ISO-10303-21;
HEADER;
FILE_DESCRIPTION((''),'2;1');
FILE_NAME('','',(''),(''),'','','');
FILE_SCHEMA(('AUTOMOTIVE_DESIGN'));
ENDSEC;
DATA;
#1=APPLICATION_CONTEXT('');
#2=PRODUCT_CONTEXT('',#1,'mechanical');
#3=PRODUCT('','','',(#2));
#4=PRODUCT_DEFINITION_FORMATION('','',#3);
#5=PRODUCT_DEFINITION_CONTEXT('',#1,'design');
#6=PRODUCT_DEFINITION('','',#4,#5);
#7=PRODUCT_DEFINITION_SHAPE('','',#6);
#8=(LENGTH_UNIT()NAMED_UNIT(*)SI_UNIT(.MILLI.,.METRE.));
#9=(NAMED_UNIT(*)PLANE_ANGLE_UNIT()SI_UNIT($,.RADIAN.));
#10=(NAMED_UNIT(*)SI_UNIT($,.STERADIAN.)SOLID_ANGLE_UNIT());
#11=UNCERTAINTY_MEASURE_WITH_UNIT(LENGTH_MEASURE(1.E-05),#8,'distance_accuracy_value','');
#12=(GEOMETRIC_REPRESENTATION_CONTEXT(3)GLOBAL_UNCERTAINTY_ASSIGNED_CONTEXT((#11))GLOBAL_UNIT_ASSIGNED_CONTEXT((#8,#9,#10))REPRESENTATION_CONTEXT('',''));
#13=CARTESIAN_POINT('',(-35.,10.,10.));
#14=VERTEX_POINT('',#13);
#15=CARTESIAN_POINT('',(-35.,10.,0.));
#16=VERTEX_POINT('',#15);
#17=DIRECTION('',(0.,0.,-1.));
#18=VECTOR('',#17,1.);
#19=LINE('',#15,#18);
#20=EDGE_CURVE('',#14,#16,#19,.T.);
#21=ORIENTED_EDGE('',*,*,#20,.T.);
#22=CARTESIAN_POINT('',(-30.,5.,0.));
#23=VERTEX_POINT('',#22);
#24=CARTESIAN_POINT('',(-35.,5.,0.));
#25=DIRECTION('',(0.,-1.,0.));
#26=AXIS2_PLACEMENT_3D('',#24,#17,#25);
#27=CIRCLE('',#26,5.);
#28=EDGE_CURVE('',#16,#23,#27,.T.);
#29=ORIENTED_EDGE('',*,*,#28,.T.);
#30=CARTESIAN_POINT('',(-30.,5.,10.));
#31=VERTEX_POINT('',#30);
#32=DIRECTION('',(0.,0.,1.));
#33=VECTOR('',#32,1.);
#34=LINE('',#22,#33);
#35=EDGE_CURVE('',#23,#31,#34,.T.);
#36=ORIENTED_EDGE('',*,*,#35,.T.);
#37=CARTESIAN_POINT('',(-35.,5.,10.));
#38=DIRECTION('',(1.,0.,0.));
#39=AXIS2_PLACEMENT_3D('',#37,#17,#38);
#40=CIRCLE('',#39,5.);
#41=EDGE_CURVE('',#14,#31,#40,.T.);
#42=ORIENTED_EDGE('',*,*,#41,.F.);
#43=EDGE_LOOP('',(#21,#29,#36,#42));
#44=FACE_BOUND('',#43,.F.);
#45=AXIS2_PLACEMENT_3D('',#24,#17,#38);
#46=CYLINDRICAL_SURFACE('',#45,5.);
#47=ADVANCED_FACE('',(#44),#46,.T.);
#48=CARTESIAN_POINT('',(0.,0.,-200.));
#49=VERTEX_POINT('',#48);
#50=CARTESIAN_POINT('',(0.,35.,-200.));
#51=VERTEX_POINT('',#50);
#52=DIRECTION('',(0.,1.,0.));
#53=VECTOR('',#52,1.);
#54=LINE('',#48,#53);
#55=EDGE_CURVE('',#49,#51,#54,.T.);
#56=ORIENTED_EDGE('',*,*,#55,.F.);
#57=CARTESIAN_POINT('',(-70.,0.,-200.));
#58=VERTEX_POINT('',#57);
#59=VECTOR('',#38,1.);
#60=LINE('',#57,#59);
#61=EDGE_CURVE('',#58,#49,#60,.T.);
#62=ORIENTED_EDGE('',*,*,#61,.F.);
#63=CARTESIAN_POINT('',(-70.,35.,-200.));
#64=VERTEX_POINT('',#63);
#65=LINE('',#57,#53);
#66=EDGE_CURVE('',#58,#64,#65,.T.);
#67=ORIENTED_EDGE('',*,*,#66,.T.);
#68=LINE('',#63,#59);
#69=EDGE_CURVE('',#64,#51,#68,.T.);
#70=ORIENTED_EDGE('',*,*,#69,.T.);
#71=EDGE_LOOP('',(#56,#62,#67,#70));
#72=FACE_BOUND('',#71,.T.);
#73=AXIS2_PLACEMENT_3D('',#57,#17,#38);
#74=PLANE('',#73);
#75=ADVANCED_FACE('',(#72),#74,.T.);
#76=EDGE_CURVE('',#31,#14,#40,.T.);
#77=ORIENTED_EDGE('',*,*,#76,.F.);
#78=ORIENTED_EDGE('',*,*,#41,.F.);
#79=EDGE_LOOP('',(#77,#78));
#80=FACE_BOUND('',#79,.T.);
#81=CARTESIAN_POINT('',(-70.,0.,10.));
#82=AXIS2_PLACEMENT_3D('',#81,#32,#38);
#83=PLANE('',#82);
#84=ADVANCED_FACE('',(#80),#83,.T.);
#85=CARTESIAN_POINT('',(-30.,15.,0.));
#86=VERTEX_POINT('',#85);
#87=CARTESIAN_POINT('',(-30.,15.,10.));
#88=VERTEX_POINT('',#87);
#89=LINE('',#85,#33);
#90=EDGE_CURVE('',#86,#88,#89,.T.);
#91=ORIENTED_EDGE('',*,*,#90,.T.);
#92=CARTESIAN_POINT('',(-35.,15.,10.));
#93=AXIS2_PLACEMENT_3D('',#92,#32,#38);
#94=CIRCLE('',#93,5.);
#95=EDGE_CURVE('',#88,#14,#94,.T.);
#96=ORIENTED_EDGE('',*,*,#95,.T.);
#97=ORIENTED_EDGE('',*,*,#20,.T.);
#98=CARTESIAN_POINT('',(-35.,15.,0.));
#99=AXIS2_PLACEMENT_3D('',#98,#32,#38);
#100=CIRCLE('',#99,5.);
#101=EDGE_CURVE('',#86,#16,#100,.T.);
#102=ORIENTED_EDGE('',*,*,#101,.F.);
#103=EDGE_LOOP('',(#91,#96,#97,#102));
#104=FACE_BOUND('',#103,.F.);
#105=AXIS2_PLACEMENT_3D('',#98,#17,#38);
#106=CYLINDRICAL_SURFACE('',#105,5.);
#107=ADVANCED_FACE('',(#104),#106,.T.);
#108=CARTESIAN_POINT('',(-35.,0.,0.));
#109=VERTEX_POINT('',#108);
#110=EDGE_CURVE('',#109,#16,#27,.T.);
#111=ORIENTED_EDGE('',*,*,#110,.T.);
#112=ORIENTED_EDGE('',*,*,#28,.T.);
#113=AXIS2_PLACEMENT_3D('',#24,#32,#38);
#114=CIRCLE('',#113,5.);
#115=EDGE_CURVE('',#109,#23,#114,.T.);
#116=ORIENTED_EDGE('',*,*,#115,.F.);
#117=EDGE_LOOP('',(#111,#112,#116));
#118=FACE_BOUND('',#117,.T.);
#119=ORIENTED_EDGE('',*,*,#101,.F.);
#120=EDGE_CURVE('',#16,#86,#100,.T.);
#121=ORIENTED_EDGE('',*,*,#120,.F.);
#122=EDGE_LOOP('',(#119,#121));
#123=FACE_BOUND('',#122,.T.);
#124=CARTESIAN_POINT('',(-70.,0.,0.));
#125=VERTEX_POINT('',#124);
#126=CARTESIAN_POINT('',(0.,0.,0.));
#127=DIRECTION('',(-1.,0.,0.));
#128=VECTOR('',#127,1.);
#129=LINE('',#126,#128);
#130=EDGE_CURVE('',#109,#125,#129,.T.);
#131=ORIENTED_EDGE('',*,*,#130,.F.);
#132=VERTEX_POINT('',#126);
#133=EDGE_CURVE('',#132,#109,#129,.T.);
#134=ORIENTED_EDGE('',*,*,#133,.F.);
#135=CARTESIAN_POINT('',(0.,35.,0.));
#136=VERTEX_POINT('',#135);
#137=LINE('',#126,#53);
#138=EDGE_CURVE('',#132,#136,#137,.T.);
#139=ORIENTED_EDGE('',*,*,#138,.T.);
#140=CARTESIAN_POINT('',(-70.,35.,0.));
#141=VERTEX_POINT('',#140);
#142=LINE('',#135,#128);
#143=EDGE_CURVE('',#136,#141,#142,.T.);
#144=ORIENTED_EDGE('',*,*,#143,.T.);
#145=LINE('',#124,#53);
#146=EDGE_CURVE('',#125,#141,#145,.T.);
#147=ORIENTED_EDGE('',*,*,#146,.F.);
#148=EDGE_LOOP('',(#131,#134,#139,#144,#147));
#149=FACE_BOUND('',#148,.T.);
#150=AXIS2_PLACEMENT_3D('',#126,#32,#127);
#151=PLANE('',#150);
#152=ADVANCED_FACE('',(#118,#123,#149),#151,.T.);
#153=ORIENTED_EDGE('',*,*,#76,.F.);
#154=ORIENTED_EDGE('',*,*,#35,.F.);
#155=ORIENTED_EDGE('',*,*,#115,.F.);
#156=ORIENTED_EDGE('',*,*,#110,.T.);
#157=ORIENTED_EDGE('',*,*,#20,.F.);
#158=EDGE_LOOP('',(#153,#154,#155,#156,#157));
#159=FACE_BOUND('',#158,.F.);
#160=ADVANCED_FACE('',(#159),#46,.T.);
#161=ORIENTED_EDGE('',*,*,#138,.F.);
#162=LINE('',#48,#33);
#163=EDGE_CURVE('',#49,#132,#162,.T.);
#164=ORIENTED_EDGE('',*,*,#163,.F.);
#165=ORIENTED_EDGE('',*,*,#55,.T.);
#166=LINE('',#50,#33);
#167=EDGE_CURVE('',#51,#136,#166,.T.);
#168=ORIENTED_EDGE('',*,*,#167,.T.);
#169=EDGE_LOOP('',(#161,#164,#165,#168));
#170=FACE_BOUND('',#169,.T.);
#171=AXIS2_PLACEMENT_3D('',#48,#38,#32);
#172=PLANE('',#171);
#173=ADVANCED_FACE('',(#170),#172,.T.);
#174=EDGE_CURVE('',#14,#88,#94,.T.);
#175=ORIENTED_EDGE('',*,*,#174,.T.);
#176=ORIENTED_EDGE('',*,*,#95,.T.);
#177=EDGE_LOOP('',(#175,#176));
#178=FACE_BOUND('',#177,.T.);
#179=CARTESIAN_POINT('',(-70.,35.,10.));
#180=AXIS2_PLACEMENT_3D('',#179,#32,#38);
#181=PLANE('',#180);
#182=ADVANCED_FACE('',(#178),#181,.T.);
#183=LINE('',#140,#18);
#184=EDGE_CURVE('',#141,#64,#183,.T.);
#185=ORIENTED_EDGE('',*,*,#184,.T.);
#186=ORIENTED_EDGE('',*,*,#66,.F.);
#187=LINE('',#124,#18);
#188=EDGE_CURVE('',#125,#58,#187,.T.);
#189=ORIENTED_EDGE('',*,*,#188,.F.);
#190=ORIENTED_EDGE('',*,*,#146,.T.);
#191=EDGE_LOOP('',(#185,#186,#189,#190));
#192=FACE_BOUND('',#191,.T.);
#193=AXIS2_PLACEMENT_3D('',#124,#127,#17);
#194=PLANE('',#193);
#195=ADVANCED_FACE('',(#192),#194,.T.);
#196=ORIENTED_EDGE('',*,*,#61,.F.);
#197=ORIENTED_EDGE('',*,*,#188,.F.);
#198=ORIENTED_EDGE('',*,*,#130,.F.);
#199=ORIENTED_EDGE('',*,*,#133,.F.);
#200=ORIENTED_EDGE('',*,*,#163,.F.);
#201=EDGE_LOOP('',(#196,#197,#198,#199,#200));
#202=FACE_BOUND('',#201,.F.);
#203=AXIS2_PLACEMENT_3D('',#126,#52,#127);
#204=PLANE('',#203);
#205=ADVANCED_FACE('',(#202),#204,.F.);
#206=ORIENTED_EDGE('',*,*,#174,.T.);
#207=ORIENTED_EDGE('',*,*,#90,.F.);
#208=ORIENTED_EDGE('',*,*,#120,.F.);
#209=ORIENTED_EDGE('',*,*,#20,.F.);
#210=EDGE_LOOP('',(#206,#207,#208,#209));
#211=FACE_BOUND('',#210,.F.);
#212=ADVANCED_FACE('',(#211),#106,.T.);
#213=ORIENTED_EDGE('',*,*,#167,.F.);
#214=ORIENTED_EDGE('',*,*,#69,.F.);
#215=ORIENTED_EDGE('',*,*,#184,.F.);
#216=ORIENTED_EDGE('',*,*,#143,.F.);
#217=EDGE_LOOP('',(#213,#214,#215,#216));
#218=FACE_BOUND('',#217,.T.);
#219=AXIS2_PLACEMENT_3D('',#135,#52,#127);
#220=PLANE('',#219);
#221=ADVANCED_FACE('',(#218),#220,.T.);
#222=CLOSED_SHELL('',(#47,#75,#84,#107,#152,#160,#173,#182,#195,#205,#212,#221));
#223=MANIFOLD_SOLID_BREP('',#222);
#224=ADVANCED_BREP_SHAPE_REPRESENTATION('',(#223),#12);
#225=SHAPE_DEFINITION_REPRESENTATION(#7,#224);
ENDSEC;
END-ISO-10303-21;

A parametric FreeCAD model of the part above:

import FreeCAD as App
import Part
import Sketcher

doc = App.newDocument("Part")
body = doc.addObject("PartDesign::Body", "Body")

# Sketch on XZ plane
sketch1 = doc.addObject("Sketcher::SketchObject", "Sketch")
body.addObject(sketch1)
sketch1.AttachmentSupport = (doc.XZ_Plane, [""])
sketch1.MapMode = "FlatFace"
sketch1.addGeometry([
    Part.LineSegment(App.Vector(-70, 0, 0), App.Vector(0, 0, 0)),
    Part.LineSegment(App.Vector(0, 0, 0), App.Vector(0, -200, 0)),
    Part.LineSegment(App.Vector(0, -200, 0), App.Vector(-70, -200, 0)),
    Part.LineSegment(App.Vector(-70, -200, 0), App.Vector(-70, 0, 0)),
], False)
sketch1.addConstraint([
    Sketcher.Constraint("Coincident", 0, 2, 1, 1),
    Sketcher.Constraint("Coincident", 1, 2, 2, 1),
    Sketcher.Constraint("Coincident", 2, 2, 3, 1),
    Sketcher.Constraint("Coincident", 3, 2, 0, 1),
    Sketcher.Constraint("Horizontal", 0),
    Sketcher.Constraint("Vertical", 1),
    Sketcher.Constraint("Horizontal", 2),
    Sketcher.Constraint("Vertical", 3),
    Sketcher.Constraint("Coincident", 0, 2, -1, 1),
    Sketcher.Constraint("DistanceX", 0, 1, 0, 2, 70.0),
    Sketcher.Constraint("DistanceY", 1, 2, 1, 1, 200.0),
])
pad1 = doc.addObject("PartDesign::Pad", "Pad")
body.addObject(pad1)
pad1.Profile = sketch1
pad1.Length = 35
pad1.Reversed = True

# Sketch on XY plane
sketch2 = doc.addObject("Sketcher::SketchObject", "Sketch001")
body.addObject(sketch2)
sketch2.AttachmentSupport = (doc.XY_Plane, [""])
sketch2.MapMode = "FlatFace"
sketch2.addGeometry(Part.Circle(App.Vector(-35, 5, 0), App.Vector(0, 0, 1), 5), False)
sketch2.addConstraint([
    Sketcher.Constraint("Diameter", 0, 10.0),
    Sketcher.Constraint("DistanceX", 0, 3, -1, 1, 35.0),
    Sketcher.Constraint("DistanceY", -1, 1, 0, 3, 5.0),
])
pad2 = doc.addObject("PartDesign::Pad", "Pad001")
body.addObject(pad2)
pad2.Profile = sketch2
pad2.Length = 10

# Sketch on XY plane
sketch3 = doc.addObject("Sketcher::SketchObject", "Sketch002")
body.addObject(sketch3)
sketch3.AttachmentSupport = (doc.XY_Plane, [""])
sketch3.MapMode = "FlatFace"
sketch3.addGeometry(Part.Circle(App.Vector(-35, 15, 0), App.Vector(0, 0, 1), 5), False)
sketch3.addConstraint([
    Sketcher.Constraint("Diameter", 0, 10.0),
    Sketcher.Constraint("DistanceX", 0, 3, -1, 1, 35.0),
    Sketcher.Constraint("DistanceY", -1, 1, 0, 3, 15.0),
])
pad3 = doc.addObject("PartDesign::Pad", "Pad002")
body.addObject(pad3)
pad3.Profile = sketch3
pad3.Length = 10

doc.recompute()
